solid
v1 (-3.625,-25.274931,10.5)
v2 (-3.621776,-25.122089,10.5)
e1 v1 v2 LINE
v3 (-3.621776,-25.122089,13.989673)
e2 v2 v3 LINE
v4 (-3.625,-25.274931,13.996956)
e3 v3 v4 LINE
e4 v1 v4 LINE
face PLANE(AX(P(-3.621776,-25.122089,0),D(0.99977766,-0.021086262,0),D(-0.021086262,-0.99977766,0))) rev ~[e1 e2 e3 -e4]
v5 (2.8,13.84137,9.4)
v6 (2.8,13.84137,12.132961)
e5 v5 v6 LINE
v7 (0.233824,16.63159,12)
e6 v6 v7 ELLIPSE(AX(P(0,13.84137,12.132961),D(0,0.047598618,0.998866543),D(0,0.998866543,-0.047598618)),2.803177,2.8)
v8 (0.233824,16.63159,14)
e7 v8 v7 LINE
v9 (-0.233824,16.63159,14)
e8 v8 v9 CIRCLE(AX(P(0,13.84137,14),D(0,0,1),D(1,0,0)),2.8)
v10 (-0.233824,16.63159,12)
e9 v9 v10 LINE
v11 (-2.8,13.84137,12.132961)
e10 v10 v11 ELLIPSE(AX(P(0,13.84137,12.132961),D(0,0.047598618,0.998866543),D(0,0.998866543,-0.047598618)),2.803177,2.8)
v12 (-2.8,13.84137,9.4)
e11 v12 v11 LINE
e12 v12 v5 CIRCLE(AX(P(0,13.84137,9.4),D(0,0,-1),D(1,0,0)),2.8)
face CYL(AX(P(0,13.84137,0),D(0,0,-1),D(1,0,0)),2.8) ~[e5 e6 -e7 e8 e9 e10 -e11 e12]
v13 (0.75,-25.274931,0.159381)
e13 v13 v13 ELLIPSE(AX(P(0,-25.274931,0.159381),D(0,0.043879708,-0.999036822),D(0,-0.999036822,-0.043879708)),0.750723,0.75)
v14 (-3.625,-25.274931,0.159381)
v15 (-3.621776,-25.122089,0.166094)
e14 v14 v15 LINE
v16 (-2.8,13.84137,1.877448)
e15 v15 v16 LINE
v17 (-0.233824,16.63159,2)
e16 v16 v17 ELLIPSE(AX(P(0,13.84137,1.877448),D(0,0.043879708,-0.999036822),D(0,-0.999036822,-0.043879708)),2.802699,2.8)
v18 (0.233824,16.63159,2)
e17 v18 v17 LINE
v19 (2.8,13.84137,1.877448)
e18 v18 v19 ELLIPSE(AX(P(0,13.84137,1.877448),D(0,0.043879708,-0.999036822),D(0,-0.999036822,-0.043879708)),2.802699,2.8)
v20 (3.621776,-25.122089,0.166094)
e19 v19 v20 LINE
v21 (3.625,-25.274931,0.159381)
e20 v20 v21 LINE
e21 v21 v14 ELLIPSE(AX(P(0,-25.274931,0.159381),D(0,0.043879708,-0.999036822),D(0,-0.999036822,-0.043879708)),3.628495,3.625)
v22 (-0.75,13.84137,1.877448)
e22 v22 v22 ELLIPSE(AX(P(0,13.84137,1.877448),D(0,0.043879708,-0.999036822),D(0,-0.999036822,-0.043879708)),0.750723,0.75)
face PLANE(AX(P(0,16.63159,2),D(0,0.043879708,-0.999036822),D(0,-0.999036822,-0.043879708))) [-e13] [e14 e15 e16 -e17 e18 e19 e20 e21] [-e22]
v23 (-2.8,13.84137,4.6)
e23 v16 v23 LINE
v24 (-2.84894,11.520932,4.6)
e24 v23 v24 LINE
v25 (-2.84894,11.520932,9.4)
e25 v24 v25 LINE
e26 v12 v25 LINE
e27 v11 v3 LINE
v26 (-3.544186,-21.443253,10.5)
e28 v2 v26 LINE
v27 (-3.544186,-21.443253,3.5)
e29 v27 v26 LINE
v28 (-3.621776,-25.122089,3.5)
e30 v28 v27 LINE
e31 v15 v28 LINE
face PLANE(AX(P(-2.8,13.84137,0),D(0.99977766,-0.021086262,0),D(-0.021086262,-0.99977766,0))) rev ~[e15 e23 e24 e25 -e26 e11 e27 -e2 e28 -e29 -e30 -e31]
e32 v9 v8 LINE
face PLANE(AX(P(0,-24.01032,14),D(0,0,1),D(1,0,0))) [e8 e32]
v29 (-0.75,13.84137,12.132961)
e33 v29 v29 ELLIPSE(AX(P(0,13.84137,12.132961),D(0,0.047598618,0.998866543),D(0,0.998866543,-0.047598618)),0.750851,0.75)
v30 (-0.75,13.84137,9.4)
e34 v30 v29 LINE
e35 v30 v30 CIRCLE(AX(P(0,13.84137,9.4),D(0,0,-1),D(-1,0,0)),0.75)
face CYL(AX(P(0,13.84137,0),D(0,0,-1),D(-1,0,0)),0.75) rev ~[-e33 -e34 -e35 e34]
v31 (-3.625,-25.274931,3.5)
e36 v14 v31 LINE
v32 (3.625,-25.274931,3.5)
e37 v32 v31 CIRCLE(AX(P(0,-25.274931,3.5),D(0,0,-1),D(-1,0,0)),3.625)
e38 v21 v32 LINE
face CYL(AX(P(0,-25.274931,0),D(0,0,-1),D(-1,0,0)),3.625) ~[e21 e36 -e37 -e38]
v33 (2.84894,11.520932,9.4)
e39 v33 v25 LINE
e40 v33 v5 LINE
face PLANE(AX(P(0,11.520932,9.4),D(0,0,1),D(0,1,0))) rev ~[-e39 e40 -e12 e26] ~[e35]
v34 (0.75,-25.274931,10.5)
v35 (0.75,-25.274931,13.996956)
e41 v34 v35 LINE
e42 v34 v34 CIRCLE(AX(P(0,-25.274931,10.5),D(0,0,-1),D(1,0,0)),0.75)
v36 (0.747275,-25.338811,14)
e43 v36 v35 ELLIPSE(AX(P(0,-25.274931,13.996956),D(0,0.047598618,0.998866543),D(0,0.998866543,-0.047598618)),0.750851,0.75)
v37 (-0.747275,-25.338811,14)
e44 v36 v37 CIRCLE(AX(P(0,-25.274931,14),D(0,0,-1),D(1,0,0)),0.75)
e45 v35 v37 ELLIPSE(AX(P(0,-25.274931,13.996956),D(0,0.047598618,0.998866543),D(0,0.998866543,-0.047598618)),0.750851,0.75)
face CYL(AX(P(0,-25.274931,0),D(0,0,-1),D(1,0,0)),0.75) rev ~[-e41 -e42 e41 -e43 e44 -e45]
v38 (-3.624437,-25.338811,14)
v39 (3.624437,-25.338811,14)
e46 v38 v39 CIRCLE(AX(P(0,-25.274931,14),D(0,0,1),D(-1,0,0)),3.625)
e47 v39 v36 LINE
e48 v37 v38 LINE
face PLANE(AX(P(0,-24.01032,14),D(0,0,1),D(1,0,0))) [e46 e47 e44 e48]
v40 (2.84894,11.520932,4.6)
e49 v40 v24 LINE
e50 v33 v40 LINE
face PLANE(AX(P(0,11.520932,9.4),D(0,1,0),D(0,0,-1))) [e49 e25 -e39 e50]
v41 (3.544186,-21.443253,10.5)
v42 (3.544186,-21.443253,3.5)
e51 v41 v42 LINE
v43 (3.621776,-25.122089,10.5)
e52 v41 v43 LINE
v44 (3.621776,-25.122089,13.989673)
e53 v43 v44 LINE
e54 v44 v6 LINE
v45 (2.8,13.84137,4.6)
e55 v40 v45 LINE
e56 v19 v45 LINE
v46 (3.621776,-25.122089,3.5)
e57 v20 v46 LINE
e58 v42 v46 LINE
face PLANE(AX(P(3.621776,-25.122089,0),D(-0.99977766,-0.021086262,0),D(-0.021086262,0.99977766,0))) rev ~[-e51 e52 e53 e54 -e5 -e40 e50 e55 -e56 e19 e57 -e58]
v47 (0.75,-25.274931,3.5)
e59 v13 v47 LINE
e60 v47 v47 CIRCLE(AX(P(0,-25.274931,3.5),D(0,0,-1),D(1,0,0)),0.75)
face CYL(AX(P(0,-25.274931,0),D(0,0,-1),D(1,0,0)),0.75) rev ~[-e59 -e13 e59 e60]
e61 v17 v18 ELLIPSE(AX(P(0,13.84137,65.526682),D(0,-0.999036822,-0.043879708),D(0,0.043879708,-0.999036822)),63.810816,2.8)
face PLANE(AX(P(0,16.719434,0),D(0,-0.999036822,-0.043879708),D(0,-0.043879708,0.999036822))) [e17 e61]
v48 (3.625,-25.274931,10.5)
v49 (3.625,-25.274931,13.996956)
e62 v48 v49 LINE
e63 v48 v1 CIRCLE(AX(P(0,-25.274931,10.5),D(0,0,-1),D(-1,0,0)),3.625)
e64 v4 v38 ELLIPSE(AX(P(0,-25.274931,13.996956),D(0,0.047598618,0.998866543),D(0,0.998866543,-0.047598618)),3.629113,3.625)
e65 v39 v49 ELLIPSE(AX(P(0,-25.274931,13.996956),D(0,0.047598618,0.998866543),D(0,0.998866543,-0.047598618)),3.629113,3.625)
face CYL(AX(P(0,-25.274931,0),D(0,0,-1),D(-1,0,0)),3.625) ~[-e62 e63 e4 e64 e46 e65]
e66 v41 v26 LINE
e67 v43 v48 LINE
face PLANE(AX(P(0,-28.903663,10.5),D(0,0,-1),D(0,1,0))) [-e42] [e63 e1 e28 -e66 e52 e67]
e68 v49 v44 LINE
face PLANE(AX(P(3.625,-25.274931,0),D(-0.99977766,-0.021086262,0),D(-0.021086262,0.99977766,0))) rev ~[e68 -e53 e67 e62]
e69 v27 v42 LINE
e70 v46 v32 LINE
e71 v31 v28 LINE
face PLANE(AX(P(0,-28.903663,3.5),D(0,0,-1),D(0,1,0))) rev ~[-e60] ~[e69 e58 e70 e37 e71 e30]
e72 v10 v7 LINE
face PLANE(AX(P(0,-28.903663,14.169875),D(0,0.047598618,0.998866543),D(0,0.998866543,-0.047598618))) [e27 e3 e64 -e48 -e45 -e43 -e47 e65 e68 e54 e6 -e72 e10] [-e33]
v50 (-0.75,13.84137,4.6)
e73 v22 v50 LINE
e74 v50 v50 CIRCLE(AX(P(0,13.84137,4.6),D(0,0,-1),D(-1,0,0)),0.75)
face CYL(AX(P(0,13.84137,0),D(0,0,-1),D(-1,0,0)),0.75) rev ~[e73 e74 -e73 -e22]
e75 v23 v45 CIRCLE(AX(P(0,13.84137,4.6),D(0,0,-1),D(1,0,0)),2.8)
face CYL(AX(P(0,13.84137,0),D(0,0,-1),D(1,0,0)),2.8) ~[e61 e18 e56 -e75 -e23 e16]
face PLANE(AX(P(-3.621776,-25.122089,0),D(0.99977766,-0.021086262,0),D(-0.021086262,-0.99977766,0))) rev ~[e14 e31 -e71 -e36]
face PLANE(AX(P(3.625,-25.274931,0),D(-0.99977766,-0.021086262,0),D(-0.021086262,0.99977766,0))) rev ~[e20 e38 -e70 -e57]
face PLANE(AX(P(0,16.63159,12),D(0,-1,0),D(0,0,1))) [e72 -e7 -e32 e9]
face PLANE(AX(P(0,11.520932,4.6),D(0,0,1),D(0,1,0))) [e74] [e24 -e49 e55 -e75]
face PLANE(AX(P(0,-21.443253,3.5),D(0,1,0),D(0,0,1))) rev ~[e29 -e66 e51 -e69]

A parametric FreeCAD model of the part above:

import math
import FreeCAD as App
import Part
import Sketcher

V = App.Vector
Q = App.Units.Quantity

doc = App.newDocument("Part")
body = doc.addObject("PartDesign::Body", "Body")

sketch1 = body.newObject("Sketcher::SketchObject", "Sketch")
sketch1.AttachmentSupport = (doc.getObject("XY_Plane"), [""])
sketch1.MapMode = "FlatFace"
sketch1.addGeometry([
    Part.LineSegment(V(3.62, -25.27, 0), V(3.62, -25.12, 0)),
    Part.LineSegment(V(3.62, -25.12, 0), V(2.8, 13.84, 0)),
    Part.ArcOfCircle(Part.Circle(V(0, 13.84, 0), V(0, 0, 1), 2.8), math.radians(0), math.radians(180)),
    Part.LineSegment(V(-2.8, 13.84, 0), V(-3.62, -25.12, 0)),
    Part.LineSegment(V(-3.62, -25.12, 0), V(-3.62, -25.27, 0)),
    Part.ArcOfCircle(Part.Circle(V(0, -25.27, 0), V(0, 0, 1), 3.62), math.radians(180), math.radians(360)),
    Part.Circle(V(0, -25.27, 0), V(0, 0, 1), 0.75),
    Part.Circle(V(0, 13.84, 0), V(0, 0, 1), 0.75),
], False)
sketch1.addConstraint([
    Sketcher.Constraint("Coincident", 0, 2, 1, 1),
    Sketcher.Constraint("Coincident", 1, 2, 2, 1),
    Sketcher.Constraint("Coincident", 2, 2, 3, 1),
    Sketcher.Constraint("Coincident", 3, 2, 4, 1),
    Sketcher.Constraint("Coincident", 4, 2, 5, 1),
    Sketcher.Constraint("Coincident", 5, 2, 0, 1),
    Sketcher.Constraint("Coincident", 6, 3, 5, 3),
    Sketcher.Constraint("Coincident", 7, 3, 2, 3),
    Sketcher.Constraint("Equal", 6, 7),
    Sketcher.Constraint("Symmetric", 1, 2, 2, 2, -2),
    Sketcher.Constraint("Symmetric", 0, 2, 3, 2, -2),
    Sketcher.Constraint("Symmetric", 4, 2, 5, 2, -2),
    Sketcher.Constraint("Parallel", 0, 1),
    Sketcher.Constraint("Horizontal", 7, 3, 1, 2),
    Sketcher.Constraint("Horizontal", 6, 3, 4, 2),
    Sketcher.Constraint("Diameter", 6, Q("1.5 mm")),
    Sketcher.Constraint("Radius", 2, Q("2.8 mm")),
    Sketcher.Constraint("Radius", 5, Q("3.625 mm")),
    Sketcher.Constraint("DistanceY", 5, 3, 2, 3, Q("39.116301 mm")),
    Sketcher.Constraint("DistanceY", -1, 1, 2, 3, Q("13.84137 mm")),
    Sketcher.Constraint("DistanceY", 0, 2, -1, 1, Q("25.122089 mm")),
])
pad1 = body.newObject("PartDesign::Pad", "Pad")
pad1.Profile = sketch1
pad1.Length = 14

sketch2 = body.newObject("Sketcher::SketchObject", "Sketch001")
sketch2.AttachmentSupport = (doc.getObject("YZ_Plane"), [""])
sketch2.MapMode = "FlatFace"
sketch2.addGeometry([
    Part.LineSegment(V(-28.9, 17.3, 0), V(-28.9, 14.2, 0)),
    Part.LineSegment(V(-28.9, 14.2, 0), V(16.6, 12, 0)),
    Part.LineSegment(V(16.6, 12, 0), V(16.6, 18.5, 0)),
    Part.LineSegment(V(16.6, 18.5, 0), V(-28.9, 17.3, 0)),
    Part.LineSegment(V(16.6, 2, 0), V(-28.9, 0, 0)),
    Part.LineSegment(V(-28.9, 0, 0), V(16.7, 0, 0)),
    Part.LineSegment(V(16.7, 0, 0), V(16.6, 2, 0)),
    Part.LineSegment(V(11.5, 4.6, 0), V(23, 4.6, 0)),
    Part.LineSegment(V(23, 4.6, 0), V(23, 9.4, 0)),
    Part.LineSegment(V(23, 9.4, 0), V(11.5, 9.4, 0)),
    Part.LineSegment(V(11.5, 9.4, 0), V(11.5, 4.6, 0)),
    Part.LineSegment(V(-28.9, 10.5, 0), V(-28.9, 3.5, 0)),
    Part.LineSegment(V(-28.9, 3.5, 0), V(-21.4, 3.5, 0)),
    Part.LineSegment(V(-21.4, 3.5, 0), V(-21.4, 10.5, 0)),
    Part.LineSegment(V(-21.4, 10.5, 0), V(-28.9, 10.5, 0)),
], False)
sketch2.addConstraint([
    Sketcher.Constraint("Coincident", 0, 2, 1, 1),
    Sketcher.Constraint("Coincident", 1, 2, 2, 1),
    Sketcher.Constraint("Coincident", 2, 2, 3, 1),
    Sketcher.Constraint("Coincident", 3, 2, 0, 1),
    Sketcher.Constraint("Coincident", 4, 2, 5, 1),
    Sketcher.Constraint("Coincident", 5, 2, 6, 1),
    Sketcher.Constraint("Coincident", 6, 2, 4, 1),
    Sketcher.Constraint("Coincident", 7, 2, 8, 1),
    Sketcher.Constraint("Coincident", 8, 2, 9, 1),
    Sketcher.Constraint("Coincident", 9, 2, 10, 1),
    Sketcher.Constraint("Coincident", 10, 2, 7, 1),
    Sketcher.Constraint("Coincident", 11, 2, 12, 1),
    Sketcher.Constraint("Coincident", 12, 2, 13, 1),
    Sketcher.Constraint("Coincident", 13, 2, 14, 1),
    Sketcher.Constraint("Coincident", 14, 2, 11, 1),
    Sketcher.Constraint("Vertical", 0),
    Sketcher.Constraint("Vertical", 2),
    Sketcher.Constraint("Horizontal", 5),
    Sketcher.Constraint("Horizontal", 7),
    Sketcher.Constraint("Vertical", 8),
    Sketcher.Constraint("Horizontal", 9),
    Sketcher.Constraint("Vertical", 10),
    Sketcher.Constraint("Vertical", 11),
    Sketcher.Constraint("Horizontal", 12),
    Sketcher.Constraint("Vertical", 13),
    Sketcher.Constraint("Horizontal", 14),
    Sketcher.Constraint("PointOnObject", 4, 2, -1),
    Sketcher.Constraint("Perpendicular", 4, 6),
    Sketcher.Constraint("Vertical", 3, 2, 4, 2),
    Sketcher.Constraint("Vertical", 2, 2, 6, 2),
    Sketcher.Constraint("Vertical", 4, 2, 11, 2),
    Sketcher.Constraint("DistanceY", 11, 2, 11, 1, Q("7 mm")),
    Sketcher.Constraint("DistanceX", 7, 1, 7, 2, Q("11.5 mm")),
    Sketcher.Constraint("DistanceY", 8, 1, 8, 2, Q("4.8 mm")),
    Sketcher.Constraint("DistanceY", -1, 1, 1, 2, Q("12 mm")),
    Sketcher.Constraint("DistanceY", -1, 1, 6, 2, Q("2 mm")),
    Sketcher.Constraint("DistanceY", -1, 1, 7, 2, Q("4.6 mm")),
    Sketcher.Constraint("DistanceY", -1, 1, 11, 2, Q("3.5 mm")),
    Sketcher.Constraint("Distance", 3, Q("45.550601 mm")),
    Sketcher.Constraint("DistanceX", 12, 1, 12, 2, Q("7.460411 mm")),
    Sketcher.Constraint("DistanceX", 5, 1, 5, 2, Q("45.623097 mm")),
    Sketcher.Constraint("DistanceY", 0, 2, 0, 1, Q("3.110745 mm")),
    Sketcher.Constraint("DistanceY", 2, 1, 2, 2, Q("6.462986 mm")),
    Sketcher.Constraint("DistanceX", -1, 1, 1, 2, Q("16.63159 mm")),
    Sketcher.Constraint("DistanceX", -1, 1, 7, 2, Q("23.020932 mm")),
])
pocket1 = body.newObject("PartDesign::Pocket", "Pocket")
pocket1.Profile = sketch2
pocket1.Length = 25
pocket1.Midplane = True

doc.recompute()
